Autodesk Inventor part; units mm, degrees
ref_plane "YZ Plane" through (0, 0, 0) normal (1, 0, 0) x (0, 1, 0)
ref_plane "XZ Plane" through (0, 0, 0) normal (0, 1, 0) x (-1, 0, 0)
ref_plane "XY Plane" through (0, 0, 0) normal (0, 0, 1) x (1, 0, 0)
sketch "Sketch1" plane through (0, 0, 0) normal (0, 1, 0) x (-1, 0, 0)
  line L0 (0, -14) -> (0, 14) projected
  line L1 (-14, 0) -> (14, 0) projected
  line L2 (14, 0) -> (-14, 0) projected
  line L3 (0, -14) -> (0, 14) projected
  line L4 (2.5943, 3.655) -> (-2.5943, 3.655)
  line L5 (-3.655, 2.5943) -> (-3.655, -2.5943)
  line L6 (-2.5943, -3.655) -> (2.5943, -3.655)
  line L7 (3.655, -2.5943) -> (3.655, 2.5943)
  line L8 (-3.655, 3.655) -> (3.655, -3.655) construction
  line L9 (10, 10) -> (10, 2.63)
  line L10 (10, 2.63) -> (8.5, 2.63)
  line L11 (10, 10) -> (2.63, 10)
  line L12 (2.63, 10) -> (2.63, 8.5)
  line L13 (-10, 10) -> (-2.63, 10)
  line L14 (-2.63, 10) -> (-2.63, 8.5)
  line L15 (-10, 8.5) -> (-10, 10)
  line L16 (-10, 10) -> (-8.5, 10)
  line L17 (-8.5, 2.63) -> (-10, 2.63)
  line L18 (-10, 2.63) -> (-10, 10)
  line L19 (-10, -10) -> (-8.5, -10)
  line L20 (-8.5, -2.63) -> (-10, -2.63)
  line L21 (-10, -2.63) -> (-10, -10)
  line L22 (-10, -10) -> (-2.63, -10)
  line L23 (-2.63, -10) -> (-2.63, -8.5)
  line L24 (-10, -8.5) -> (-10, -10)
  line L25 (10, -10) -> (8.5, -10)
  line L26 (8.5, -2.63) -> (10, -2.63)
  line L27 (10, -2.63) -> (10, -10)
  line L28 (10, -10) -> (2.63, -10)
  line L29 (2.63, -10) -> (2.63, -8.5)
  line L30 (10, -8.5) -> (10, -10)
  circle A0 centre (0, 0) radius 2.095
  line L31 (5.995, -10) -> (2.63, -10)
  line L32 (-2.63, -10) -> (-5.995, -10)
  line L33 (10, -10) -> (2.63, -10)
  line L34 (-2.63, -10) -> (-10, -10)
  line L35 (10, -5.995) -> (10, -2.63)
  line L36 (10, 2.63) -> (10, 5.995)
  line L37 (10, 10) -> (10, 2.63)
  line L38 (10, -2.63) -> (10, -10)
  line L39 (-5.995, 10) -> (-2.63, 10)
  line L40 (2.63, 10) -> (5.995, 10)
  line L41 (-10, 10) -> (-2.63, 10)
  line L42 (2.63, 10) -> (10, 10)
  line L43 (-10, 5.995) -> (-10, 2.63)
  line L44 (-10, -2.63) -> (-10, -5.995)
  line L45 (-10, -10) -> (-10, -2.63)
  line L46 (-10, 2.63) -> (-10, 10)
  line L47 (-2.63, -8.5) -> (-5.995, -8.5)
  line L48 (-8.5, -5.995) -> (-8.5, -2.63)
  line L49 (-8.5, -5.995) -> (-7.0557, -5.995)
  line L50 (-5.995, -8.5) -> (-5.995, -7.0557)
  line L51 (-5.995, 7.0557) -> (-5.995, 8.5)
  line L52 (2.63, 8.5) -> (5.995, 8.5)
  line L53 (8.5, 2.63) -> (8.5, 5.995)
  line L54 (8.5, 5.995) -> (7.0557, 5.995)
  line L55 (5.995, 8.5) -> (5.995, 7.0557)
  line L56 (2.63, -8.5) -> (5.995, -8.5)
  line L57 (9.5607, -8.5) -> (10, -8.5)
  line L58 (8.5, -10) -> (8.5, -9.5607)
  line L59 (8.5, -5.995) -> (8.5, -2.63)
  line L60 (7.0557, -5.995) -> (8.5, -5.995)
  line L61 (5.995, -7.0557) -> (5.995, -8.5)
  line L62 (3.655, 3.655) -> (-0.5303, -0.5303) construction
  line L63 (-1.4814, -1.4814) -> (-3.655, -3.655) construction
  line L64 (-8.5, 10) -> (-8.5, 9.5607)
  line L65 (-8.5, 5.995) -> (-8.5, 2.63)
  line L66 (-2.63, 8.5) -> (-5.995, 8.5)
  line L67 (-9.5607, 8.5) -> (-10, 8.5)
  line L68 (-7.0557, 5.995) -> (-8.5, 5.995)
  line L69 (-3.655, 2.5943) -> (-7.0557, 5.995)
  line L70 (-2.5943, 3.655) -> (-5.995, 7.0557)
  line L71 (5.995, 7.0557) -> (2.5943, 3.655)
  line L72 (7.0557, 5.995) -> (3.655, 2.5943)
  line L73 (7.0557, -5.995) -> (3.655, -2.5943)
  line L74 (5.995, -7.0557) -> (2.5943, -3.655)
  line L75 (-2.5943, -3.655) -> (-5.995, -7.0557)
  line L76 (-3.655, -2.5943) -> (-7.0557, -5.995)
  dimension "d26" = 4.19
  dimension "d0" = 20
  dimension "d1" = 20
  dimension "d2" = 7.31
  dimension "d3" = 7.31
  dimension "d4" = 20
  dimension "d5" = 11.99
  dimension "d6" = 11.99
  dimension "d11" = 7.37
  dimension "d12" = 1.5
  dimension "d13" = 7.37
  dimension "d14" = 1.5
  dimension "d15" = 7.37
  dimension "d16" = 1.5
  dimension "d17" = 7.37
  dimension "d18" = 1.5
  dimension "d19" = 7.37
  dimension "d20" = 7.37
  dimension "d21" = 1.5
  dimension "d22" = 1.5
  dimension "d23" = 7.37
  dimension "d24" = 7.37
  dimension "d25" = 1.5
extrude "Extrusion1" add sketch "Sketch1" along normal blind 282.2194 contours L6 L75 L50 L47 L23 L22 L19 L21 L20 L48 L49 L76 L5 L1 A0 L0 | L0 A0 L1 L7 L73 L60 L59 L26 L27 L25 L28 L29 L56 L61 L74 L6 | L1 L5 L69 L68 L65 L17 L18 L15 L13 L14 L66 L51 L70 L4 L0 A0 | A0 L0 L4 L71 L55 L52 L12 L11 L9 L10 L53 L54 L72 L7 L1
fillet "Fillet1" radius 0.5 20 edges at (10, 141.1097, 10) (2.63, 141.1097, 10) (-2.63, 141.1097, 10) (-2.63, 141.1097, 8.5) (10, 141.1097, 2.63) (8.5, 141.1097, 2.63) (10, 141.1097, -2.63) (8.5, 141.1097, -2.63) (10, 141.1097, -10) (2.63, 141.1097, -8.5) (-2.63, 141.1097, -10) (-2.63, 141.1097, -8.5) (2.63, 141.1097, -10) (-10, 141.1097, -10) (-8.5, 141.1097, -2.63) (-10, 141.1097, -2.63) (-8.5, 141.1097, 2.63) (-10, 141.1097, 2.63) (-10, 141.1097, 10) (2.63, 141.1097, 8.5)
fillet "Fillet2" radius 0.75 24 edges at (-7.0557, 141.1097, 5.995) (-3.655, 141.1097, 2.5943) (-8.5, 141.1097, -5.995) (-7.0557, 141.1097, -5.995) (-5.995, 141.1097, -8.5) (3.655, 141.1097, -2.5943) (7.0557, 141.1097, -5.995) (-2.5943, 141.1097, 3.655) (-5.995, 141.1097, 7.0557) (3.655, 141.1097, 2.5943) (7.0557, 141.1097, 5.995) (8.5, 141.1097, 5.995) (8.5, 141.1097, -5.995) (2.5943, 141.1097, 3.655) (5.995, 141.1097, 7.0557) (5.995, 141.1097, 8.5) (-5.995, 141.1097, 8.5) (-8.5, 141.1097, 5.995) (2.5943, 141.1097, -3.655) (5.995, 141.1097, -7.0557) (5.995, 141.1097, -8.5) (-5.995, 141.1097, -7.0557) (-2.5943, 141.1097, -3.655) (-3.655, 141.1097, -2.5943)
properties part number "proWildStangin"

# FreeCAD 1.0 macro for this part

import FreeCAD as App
import Part
import Sketcher

V = App.Vector


def edges_at(feature, points):
    """Names of the edges that pass closest to the given points."""
    edges = feature.Shape.Edges
    near = lambda p: min(range(len(edges)), key=lambda i: edges[i].distToShape(Part.Vertex(*p))[0])
    return sorted({f"Edge{near(p) + 1}" for p in points})

doc = App.newDocument("Part")
body = doc.addObject("PartDesign::Body", "Body")

sketch1 = body.newObject("Sketcher::SketchObject", "Sketch")
sketch1.AttachmentSupport = (doc.getObject("XZ_Plane"), [""])
sketch1.MapMode = "FlatFace"
sketch1.addGeometry(Part.LineSegment(V(2.5943, -3.655, 0), V(-2.5943, -3.655, 0)), False)
sketch1.addGeometry(Part.LineSegment(V(-2.5943, -3.655, 0), V(-5.995, -7.0557, 0)), False)
sketch1.addGeometry(Part.LineSegment(V(-5.995, -7.0557, 0), V(-5.995, -8.5, 0)), False)
sketch1.addGeometry(Part.LineSegment(V(-5.995, -8.5, 0), V(-2.63, -8.5, 0)), False)
sketch1.addGeometry(Part.LineSegment(V(-2.63, -8.5, 0), V(-2.63, -10, 0)), False)
sketch1.addGeometry(Part.LineSegment(V(-2.63, -10, 0), V(-10, -10, 0)), False)
sketch1.addGeometry(Part.LineSegment(V(-10, -10, 0), V(-10, -2.63, 0)), False)
sketch1.addGeometry(Part.LineSegment(V(-10, -2.63, 0), V(-8.5, -2.63, 0)), False)
sketch1.addGeometry(Part.LineSegment(V(-8.5, -2.63, 0), V(-8.5, -5.995, 0)), False)
sketch1.addGeometry(Part.LineSegment(V(-8.5, -5.995, 0), V(-7.0557, -5.995, 0)), False)
sketch1.addGeometry(Part.LineSegment(V(-7.0557, -5.995, 0), V(-3.655, -2.5943, 0)), False)
sketch1.addGeometry(Part.LineSegment(V(-3.655, -2.5943, 0), V(-3.655, 2.5943, 0)), False)
sketch1.addGeometry(Part.LineSegment(V(-3.655, 2.5943, 0), V(-7.0557, 5.995, 0)), False)
sketch1.addGeometry(Part.LineSegment(V(-7.0557, 5.995, 0), V(-8.5, 5.995, 0)), False)
sketch1.addGeometry(Part.LineSegment(V(-8.5, 5.995, 0), V(-8.5, 2.63, 0)), False)
sketch1.addGeometry(Part.LineSegment(V(-8.5, 2.63, 0), V(-10, 2.63, 0)), False)
sketch1.addGeometry(Part.LineSegment(V(-10, 2.63, 0), V(-10, 10, 0)), False)
sketch1.addGeometry(Part.LineSegment(V(-10, 10, 0), V(-2.63, 10, 0)), False)
sketch1.addGeometry(Part.LineSegment(V(-2.63, 10, 0), V(-2.63, 8.5, 0)), False)
sketch1.addGeometry(Part.LineSegment(V(-2.63, 8.5, 0), V(-5.995, 8.5, 0)), False)
sketch1.addGeometry(Part.LineSegment(V(-5.995, 8.5, 0), V(-5.995, 7.0557, 0)), False)
sketch1.addGeometry(Part.LineSegment(V(-5.995, 7.0557, 0), V(-2.5943, 3.655, 0)), False)
sketch1.addGeometry(Part.LineSegment(V(-2.5943, 3.655, 0), V(2.5943, 3.655, 0)), False)
sketch1.addGeometry(Part.LineSegment(V(2.5943, 3.655, 0), V(5.995, 7.0557, 0)), False)
sketch1.addGeometry(Part.LineSegment(V(5.995, 7.0557, 0), V(5.995, 8.5, 0)), False)
sketch1.addGeometry(Part.LineSegment(V(5.995, 8.5, 0), V(2.63, 8.5, 0)), False)
sketch1.addGeometry(Part.LineSegment(V(2.63, 8.5, 0), V(2.63, 10, 0)), False)
sketch1.addGeometry(Part.LineSegment(V(2.63, 10, 0), V(10, 10, 0)), False)
sketch1.addGeometry(Part.LineSegment(V(10, 10, 0), V(10, 2.63, 0)), False)
sketch1.addGeometry(Part.LineSegment(V(10, 2.63, 0), V(8.5, 2.63, 0)), False)
sketch1.addGeometry(Part.LineSegment(V(8.5, 2.63, 0), V(8.5, 5.995, 0)), False)
sketch1.addGeometry(Part.LineSegment(V(8.5, 5.995, 0), V(7.0557, 5.995, 0)), False)
sketch1.addGeometry(Part.LineSegment(V(7.0557, 5.995, 0), V(3.655, 2.5943, 0)), False)
sketch1.addGeometry(Part.LineSegment(V(3.655, 2.5943, 0), V(3.655, -2.5943, 0)), False)
sketch1.addGeometry(Part.LineSegment(V(3.655, -2.5943, 0), V(7.0557, -5.995, 0)), False)
sketch1.addGeometry(Part.LineSegment(V(7.0557, -5.995, 0), V(8.5, -5.995, 0)), False)
sketch1.addGeometry(Part.LineSegment(V(8.5, -5.995, 0), V(8.5, -2.63, 0)), False)
sketch1.addGeometry(Part.LineSegment(V(8.5, -2.63, 0), V(10, -2.63, 0)), False)
sketch1.addGeometry(Part.LineSegment(V(10, -2.63, 0), V(10, -10, 0)), False)
sketch1.addGeometry(Part.LineSegment(V(10, -10, 0), V(2.63, -10, 0)), False)
sketch1.addGeometry(Part.LineSegment(V(2.63, -10, 0), V(2.63, -8.5, 0)), False)
sketch1.addGeometry(Part.LineSegment(V(2.63, -8.5, 0), V(5.995, -8.5, 0)), False)
sketch1.addGeometry(Part.LineSegment(V(5.995, -8.5, 0), V(5.995, -7.0557, 0)), False)
sketch1.addGeometry(Part.LineSegment(V(5.995, -7.0557, 0), V(2.5943, -3.655, 0)), False)
sketch1.addGeometry(Part.Circle(V(0, 0, 0), V(0, 0, 1), 2.095), False)
sketch1.addConstraint(Sketcher.Constraint("Coincident", 0, 2, 1, 1))
sketch1.addConstraint(Sketcher.Constraint("Coincident", 1, 2, 2, 1))
sketch1.addConstraint(Sketcher.Constraint("Coincident", 2, 2, 3, 1))
sketch1.addConstraint(Sketcher.Constraint("Coincident", 3, 2, 4, 1))
sketch1.addConstraint(Sketcher.Constraint("Coincident", 4, 2, 5, 1))
sketch1.addConstraint(Sketcher.Constraint("Coincident", 5, 2, 6, 1))
sketch1.addConstraint(Sketcher.Constraint("Coincident", 6, 2, 7, 1))
sketch1.addConstraint(Sketcher.Constraint("Coincident", 7, 2, 8, 1))
sketch1.addConstraint(Sketcher.Constraint("Coincident", 8, 2, 9, 1))
sketch1.addConstraint(Sketcher.Constraint("Coincident", 9, 2, 10, 1))
sketch1.addConstraint(Sketcher.Constraint("Coincident", 10, 2, 11, 1))
sketch1.addConstraint(Sketcher.Constraint("Coincident", 11, 2, 12, 1))
sketch1.addConstraint(Sketcher.Constraint("Coincident", 12, 2, 13, 1))
sketch1.addConstraint(Sketcher.Constraint("Coincident", 13, 2, 14, 1))
sketch1.addConstraint(Sketcher.Constraint("Coincident", 14, 2, 15, 1))
sketch1.addConstraint(Sketcher.Constraint("Coincident", 15, 2, 16, 1))
sketch1.addConstraint(Sketcher.Constraint("Coincident", 16, 2, 17, 1))
sketch1.addConstraint(Sketcher.Constraint("Coincident", 17, 2, 18, 1))
sketch1.addConstraint(Sketcher.Constraint("Coincident", 18, 2, 19, 1))
sketch1.addConstraint(Sketcher.Constraint("Coincident", 19, 2, 20, 1))
sketch1.addConstraint(Sketcher.Constraint("Coincident", 20, 2, 21, 1))
sketch1.addConstraint(Sketcher.Constraint("Coincident", 21, 2, 22, 1))
sketch1.addConstraint(Sketcher.Constraint("Coincident", 22, 2, 23, 1))
sketch1.addConstraint(Sketcher.Constraint("Coincident", 23, 2, 24, 1))
sketch1.addConstraint(Sketcher.Constraint("Coincident", 24, 2, 25, 1))
sketch1.addConstraint(Sketcher.Constraint("Coincident", 25, 2, 26, 1))
sketch1.addConstraint(Sketcher.Constraint("Coincident", 26, 2, 27, 1))
sketch1.addConstraint(Sketcher.Constraint("Coincident", 27, 2, 28, 1))
sketch1.addConstraint(Sketcher.Constraint("Coincident", 28, 2, 29, 1))
sketch1.addConstraint(Sketcher.Constraint("Coincident", 29, 2, 30, 1))
sketch1.addConstraint(Sketcher.Constraint("Coincident", 30, 2, 31, 1))
sketch1.addConstraint(Sketcher.Constraint("Coincident", 31, 2, 32, 1))
sketch1.addConstraint(Sketcher.Constraint("Coincident", 32, 2, 33, 1))
sketch1.addConstraint(Sketcher.Constraint("Coincident", 33, 2, 34, 1))
sketch1.addConstraint(Sketcher.Constraint("Coincident", 34, 2, 35, 1))
sketch1.addConstraint(Sketcher.Constraint("Coincident", 35, 2, 36, 1))
sketch1.addConstraint(Sketcher.Constraint("Coincident", 36, 2, 37, 1))
sketch1.addConstraint(Sketcher.Constraint("Coincident", 37, 2, 38, 1))
sketch1.addConstraint(Sketcher.Constraint("Coincident", 38, 2, 39, 1))
sketch1.addConstraint(Sketcher.Constraint("Coincident", 39, 2, 40, 1))
sketch1.addConstraint(Sketcher.Constraint("Coincident", 40, 2, 41, 1))
sketch1.addConstraint(Sketcher.Constraint("Coincident", 41, 2, 42, 1))
sketch1.addConstraint(Sketcher.Constraint("Coincident", 42, 2, 43, 1))
sketch1.addConstraint(Sketcher.Constraint("Coincident", 43, 2, 0, 1))
sketch1.addConstraint(Sketcher.Constraint("Horizontal", 0))
sketch1.addConstraint(Sketcher.Constraint("Vertical", 2))
sketch1.addConstraint(Sketcher.Constraint("Horizontal", 3))
sketch1.addConstraint(Sketcher.Constraint("Vertical", 4))
sketch1.addConstraint(Sketcher.Constraint("Horizontal", 5))
sketch1.addConstraint(Sketcher.Constraint("Vertical", 6))
sketch1.addConstraint(Sketcher.Constraint("Horizontal", 7))
sketch1.addConstraint(Sketcher.Constraint("Vertical", 8))
sketch1.addConstraint(Sketcher.Constraint("Horizontal", 9))
sketch1.addConstraint(Sketcher.Constraint("Vertical", 11))
sketch1.addConstraint(Sketcher.Constraint("Horizontal", 13))
sketch1.addConstraint(Sketcher.Constraint("Vertical", 14))
sketch1.addConstraint(Sketcher.Constraint("Horizontal", 15))
sketch1.addConstraint(Sketcher.Constraint("Vertical", 16))
sketch1.addConstraint(Sketcher.Constraint("Horizontal", 17))
sketch1.addConstraint(Sketcher.Constraint("Vertical", 18))
sketch1.addConstraint(Sketcher.Constraint("Horizontal", 19))
sketch1.addConstraint(Sketcher.Constraint("Vertical", 20))
sketch1.addConstraint(Sketcher.Constraint("Horizontal", 22))
sketch1.addConstraint(Sketcher.Constraint("Vertical", 24))
sketch1.addConstraint(Sketcher.Constraint("Horizontal", 25))
sketch1.addConstraint(Sketcher.Constraint("Vertical", 26))
sketch1.addConstraint(Sketcher.Constraint("Horizontal", 27))
sketch1.addConstraint(Sketcher.Constraint("Vertical", 28))
sketch1.addConstraint(Sketcher.Constraint("Horizontal", 29))
sketch1.addConstraint(Sketcher.Constraint("Vertical", 30))
sketch1.addConstraint(Sketcher.Constraint("Horizontal", 31))
sketch1.addConstraint(Sketcher.Constraint("Vertical", 33))
sketch1.addConstraint(Sketcher.Constraint("Horizontal", 35))
sketch1.addConstraint(Sketcher.Constraint("Vertical", 36))
sketch1.addConstraint(Sketcher.Constraint("Horizontal", 37))
sketch1.addConstraint(Sketcher.Constraint("Vertical", 38))
sketch1.addConstraint(Sketcher.Constraint("Horizontal", 39))
sketch1.addConstraint(Sketcher.Constraint("Vertical", 40))
sketch1.addConstraint(Sketcher.Constraint("Horizontal", 41))
sketch1.addConstraint(Sketcher.Constraint("Vertical", 42))
sketch1.addConstraint(Sketcher.Constraint("Coincident", 44, 3, -1, 1))
sketch1.addConstraint(Sketcher.Constraint("Symmetric", 0, 2, 22, 2, -1, 1))
sketch1.addConstraint(Sketcher.Constraint("Symmetric", 1, 2, 23, 2, -1, 1))
sketch1.addConstraint(Sketcher.Constraint("Symmetric", 3, 2, 25, 2, -1, 1))
sketch1.addConstraint(Sketcher.Constraint("Symmetric", 5, 2, 27, 2, -1, 1))
sketch1.addConstraint(Sketcher.Constraint("Symmetric", 7, 2, 29, 2, -1, 1))
sketch1.addConstraint(Sketcher.Constraint("Symmetric", 9, 2, 31, 2, -1, 1))
sketch1.addConstraint(Sketcher.Constraint("Symmetric", 10, 2, 32, 2, -1, 1))
sketch1.addConstraint(Sketcher.Constraint("Symmetric", 12, 2, 34, 2, -1, 1))
sketch1.addConstraint(Sketcher.Constraint("Symmetric", 14, 2, 36, 2, -1, 1))
sketch1.addConstraint(Sketcher.Constraint("Symmetric", 16, 2, 38, 2, -1, 1))
sketch1.addConstraint(Sketcher.Constraint("Symmetric", 18, 2, 40, 2, -1, 1))
sketch1.addConstraint(Sketcher.Constraint("Symmetric", 20, 2, 42, 2, -1, 1))
sketch1.addConstraint(Sketcher.Constraint("Symmetric", 20, 2, 23, 2, -2))
sketch1.addConstraint(Sketcher.Constraint("Symmetric", 18, 2, 25, 2, -2))
sketch1.addConstraint(Sketcher.Constraint("Symmetric", 16, 2, 27, 2, -2))
sketch1.addConstraint(Sketcher.Constraint("Symmetric", 14, 2, 29, 2, -2))
sketch1.addConstraint(Sketcher.Constraint("Symmetric", 12, 2, 31, 2, -2))
sketch1.addConstraint(Sketcher.Constraint("Parallel", 1, 10))
sketch1.addConstraint(Sketcher.Constraint("Perpendicular", 10, 12))
sketch1.addConstraint(Sketcher.Constraint("Parallel", 12, 21))
sketch1.addConstraint(Sketcher.Constraint("Perpendicular", 32, 34))
sketch1.addConstraint(Sketcher.Constraint("Parallel", 34, 43))
sketch1.addConstraint(Sketcher.Constraint("Horizontal", 11, 2, 32, 2))
sketch1.addConstraint(Sketcher.Constraint("Equal", 35, 2))
sketch1.addConstraint(Sketcher.Constraint("Equal", 37, 4))
sketch1.addConstraint(Sketcher.Constraint("Equal", 39, 6))
sketch1.addConstraint(Sketcher.Constraint("Equal", 41, 8))
sketch1.addConstraint(Sketcher.Constraint("Equal", 22, 11))
sketch1.addConstraint(Sketcher.Constraint("Equal", 1, 10))
sketch1.addConstraint(Sketcher.Constraint("Diameter", 44, 4.19))
sketch1.addConstraint(Sketcher.Constraint("DistanceX", 7, 1, 7, 2, 1.5))
sketch1.addConstraint(Sketcher.Constraint("DistanceX", 5, 2, 5, 1, 7.37))
sketch1.addConstraint(Sketcher.Constraint("DistanceY", 4, 2, -1, 1, 10.0))
sketch1.addConstraint(Sketcher.Constraint("DistanceX", 3, 1, 3, 2, 3.365))
sketch1.addConstraint(Sketcher.Constraint("DistanceX", 1, 2, 10, 2, 2.34))
sketch1.addConstraint(Sketcher.Constraint("DistanceX", 0, 2, 0, 1, 5.1886))
pad1 = body.newObject("PartDesign::Pad", "Pad")
pad1.Profile = sketch1
pad1.Length = 282.2194
pad1.Reversed = True
doc.recompute()

fillet = body.newObject("PartDesign::Fillet", "Fillet")
fillet.Base = (pad1, edges_at(pad1, [
    (10, 141.11, 10),
    (2.63, 141.11, 10),
    (-2.63, 141.11, 10),
    (-2.63, 141.11, 8.5),
    (10, 141.11, 2.63),
    (8.5, 141.11, 2.63),
    (10, 141.11, -2.63),
    (8.5, 141.11, -2.63),
    (10, 141.11, -10),
    (2.63, 141.11, -8.5),
    (-2.63, 141.11, -10),
    (-2.63, 141.11, -8.5),
    (2.63, 141.11, -10),
    (-10, 141.11, -10),
    (-8.5, 141.11, -2.63),
    (-10, 141.11, -2.63),
    (-8.5, 141.11, 2.63),
    (-10, 141.11, 2.63),
    (-10, 141.11, 10),
    (2.63, 141.11, 8.5),
]))
fillet.Radius = 0.5
doc.recompute()

fillet2 = body.newObject("PartDesign::Fillet", "Fillet001")
fillet2.Base = (fillet, edges_at(fillet, [
    (-7.056, 141.11, 5.995),
    (-3.655, 141.11, 2.594),
    (-8.5, 141.11, -5.995),
    (-7.056, 141.11, -5.995),
    (-5.995, 141.11, -8.5),
    (3.655, 141.11, -2.594),
    (7.056, 141.11, -5.995),
    (-2.594, 141.11, 3.655),
    (-5.995, 141.11, 7.056),
    (3.655, 141.11, 2.594),
    (7.056, 141.11, 5.995),
    (8.5, 141.11, 5.995),
    (8.5, 141.11, -5.995),
    (2.594, 141.11, 3.655),
    (5.995, 141.11, 7.056),
    (5.995, 141.11, 8.5),
    (-5.995, 141.11, 8.5),
    (-8.5, 141.11, 5.995),
    (2.594, 141.11, -3.655),
    (5.995, 141.11, -7.056),
    (5.995, 141.11, -8.5),
    (-5.995, 141.11, -7.056),
    (-2.594, 141.11, -3.655),
    (-3.655, 141.11, -2.594),
]))
fillet2.Radius = 0.75

doc.recompute()
